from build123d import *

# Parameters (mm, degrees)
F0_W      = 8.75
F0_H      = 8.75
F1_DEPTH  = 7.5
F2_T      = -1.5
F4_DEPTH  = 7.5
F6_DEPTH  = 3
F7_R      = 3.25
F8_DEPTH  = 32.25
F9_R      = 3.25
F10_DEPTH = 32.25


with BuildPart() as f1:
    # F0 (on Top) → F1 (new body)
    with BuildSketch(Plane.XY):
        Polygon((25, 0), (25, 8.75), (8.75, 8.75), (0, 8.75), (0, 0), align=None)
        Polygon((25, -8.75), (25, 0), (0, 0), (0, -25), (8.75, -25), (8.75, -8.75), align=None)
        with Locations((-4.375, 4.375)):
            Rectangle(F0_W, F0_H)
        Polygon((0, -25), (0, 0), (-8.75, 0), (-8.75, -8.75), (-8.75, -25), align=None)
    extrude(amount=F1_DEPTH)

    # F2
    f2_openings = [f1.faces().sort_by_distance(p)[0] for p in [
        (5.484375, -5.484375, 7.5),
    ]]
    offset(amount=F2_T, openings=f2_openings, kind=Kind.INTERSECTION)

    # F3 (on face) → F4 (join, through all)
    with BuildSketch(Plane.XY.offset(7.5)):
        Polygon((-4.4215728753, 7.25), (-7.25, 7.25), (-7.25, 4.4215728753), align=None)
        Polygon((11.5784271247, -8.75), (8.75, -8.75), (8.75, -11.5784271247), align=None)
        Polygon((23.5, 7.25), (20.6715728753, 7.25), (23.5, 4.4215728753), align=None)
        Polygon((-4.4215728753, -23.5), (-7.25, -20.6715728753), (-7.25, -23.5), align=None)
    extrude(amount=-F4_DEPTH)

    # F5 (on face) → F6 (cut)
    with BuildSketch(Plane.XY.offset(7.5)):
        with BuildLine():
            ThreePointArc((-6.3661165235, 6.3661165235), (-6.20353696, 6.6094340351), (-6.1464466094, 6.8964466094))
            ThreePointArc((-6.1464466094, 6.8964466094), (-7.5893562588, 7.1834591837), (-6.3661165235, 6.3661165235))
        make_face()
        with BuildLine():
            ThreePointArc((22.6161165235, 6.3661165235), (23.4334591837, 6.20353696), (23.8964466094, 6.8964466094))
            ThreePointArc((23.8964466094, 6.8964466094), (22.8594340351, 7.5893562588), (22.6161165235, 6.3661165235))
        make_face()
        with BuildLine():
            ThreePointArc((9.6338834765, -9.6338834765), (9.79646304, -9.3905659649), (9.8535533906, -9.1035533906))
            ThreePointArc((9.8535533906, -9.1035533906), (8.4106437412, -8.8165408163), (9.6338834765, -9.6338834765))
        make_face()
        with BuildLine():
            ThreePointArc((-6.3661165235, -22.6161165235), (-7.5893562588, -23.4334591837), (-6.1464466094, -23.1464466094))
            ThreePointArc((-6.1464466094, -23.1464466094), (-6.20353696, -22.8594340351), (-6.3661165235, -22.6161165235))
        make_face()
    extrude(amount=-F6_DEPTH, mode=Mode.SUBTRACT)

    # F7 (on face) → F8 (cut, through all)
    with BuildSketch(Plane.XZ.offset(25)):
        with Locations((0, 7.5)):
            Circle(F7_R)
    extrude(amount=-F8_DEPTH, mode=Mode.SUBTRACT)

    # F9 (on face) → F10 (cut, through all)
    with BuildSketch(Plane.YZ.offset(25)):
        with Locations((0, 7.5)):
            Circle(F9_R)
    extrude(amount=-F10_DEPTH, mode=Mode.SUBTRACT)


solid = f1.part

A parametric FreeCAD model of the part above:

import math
import FreeCAD as App
import Part
import Sketcher

V = App.Vector


def faces_at(feature, points):
    """Names of the faces that lie closest to the given points."""
    faces = feature.Shape.Faces
    near = lambda p: min(range(len(faces)), key=lambda i: faces[i].distToShape(Part.Vertex(*p))[0])
    return sorted({f"Face{near(p) + 1}" for p in points})


def add_polygon(sketch, points):
    """Adds a closed chain of lines whose ends are joined by coincident constraints."""
    first, n = sketch.GeometryCount, len(points)
    for a, b in zip(points, points[1:] + points[:1]):
        sketch.addGeometry(Part.LineSegment(App.Vector(*a, 0), App.Vector(*b, 0)), False)
    for i in range(n):
        sketch.addConstraint(Sketcher.Constraint("Coincident", first + i, 2, first + (i + 1) % n, 1))

doc = App.newDocument("Part")
body = doc.addObject("PartDesign::Body", "Body")

sketch1 = body.newObject("Sketcher::SketchObject", "Sketch")
sketch1.AttachmentSupport = (doc.getObject("XY_Plane"), [""])
sketch1.MapMode = "FlatFace"
add_polygon(sketch1, [(25, 9), (-9, 9), (-9, -25), (9, -25), (9, -9), (25, -9)])
sketch1.addConstraint([
    Sketcher.Constraint("Horizontal", 0),
    Sketcher.Constraint("Vertical", 1),
    Sketcher.Constraint("Horizontal", 2),
    Sketcher.Constraint("Vertical", 3),
    Sketcher.Constraint("Horizontal", 4),
    Sketcher.Constraint("Vertical", 5),
    Sketcher.Constraint("Symmetric", 0, 2, 3, 2, -1, 1),
    Sketcher.Constraint("Equal", 0, 1),
    Sketcher.Constraint("Equal", 4, 3),
    Sketcher.Constraint("DistanceX", 2, 1, 2, 2, 17.5),
    Sketcher.Constraint("DistanceY", 1, 2, -1, 1, 25.0),
])
pad1 = body.newObject("PartDesign::Pad", "Pad")
pad1.Profile = sketch1
pad1.Length = 7.5
doc.recompute()

thickness = body.newObject("PartDesign::Thickness", "Thickness")
thickness.Base = (pad1, faces_at(pad1, [(8.125, -8.125, 7.5)]))
thickness.Value = 1.5
thickness.Reversed = True
thickness.Join = "Intersection"

sketch2 = body.newObject("Sketcher::SketchObject", "Sketch001")
sketch2.AttachmentSupport = (doc.getObject("XY_Plane"), [""])
sketch2.MapMode = "FlatFace"
sketch2.AttachmentOffset = App.Placement(V(0, 0, 7.5), App.Rotation())
add_polygon(sketch2, [(-4.4, 7.2), (-7.2, 7.2), (-7.2, 4.4)])
add_polygon(sketch2, [(11.6, -8.8), (8.8, -8.8), (8.8, -11.6)])
add_polygon(sketch2, [(23.5, 7.2), (20.7, 7.2), (23.5, 4.4)])
add_polygon(sketch2, [(-4.4, -23.5), (-7.2, -20.7), (-7.2, -23.5)])
sketch2.addConstraint([
    Sketcher.Constraint("Horizontal", 0),
    Sketcher.Constraint("Vertical", 1),
    Sketcher.Constraint("Horizontal", 3),
    Sketcher.Constraint("Vertical", 4),
    Sketcher.Constraint("Horizontal", 6),
    Sketcher.Constraint("Vertical", 8),
    Sketcher.Constraint("Vertical", 10),
    Sketcher.Constraint("Horizontal", 11),
    Sketcher.Constraint("Parallel", 2, 5),
    Sketcher.Constraint("Perpendicular", 5, 7),
    Sketcher.Constraint("Parallel", 7, 9),
    Sketcher.Constraint("Horizontal", 2, 2, 6, 2),
    Sketcher.Constraint("Horizontal", 1, 2, 7, 2),
    Sketcher.Constraint("Vertical", 1, 2, 9, 2),
    Sketcher.Constraint("Vertical", 2, 2, 11, 2),
    Sketcher.Constraint("Equal", 0, 3),
    Sketcher.Constraint("Equal", 3, 6),
    Sketcher.Constraint("Distance", 2, 4.0),
    Sketcher.Constraint("DistanceX", 1, 2, 3, 2, 16.0),
    Sketcher.Constraint("DistanceY", 3, 2, 2, 2, 16.0),
    Sketcher.Constraint("DistanceX", -1, 1, 7, 2, 23.5),
    Sketcher.Constraint("DistanceY", 10, 2, -1, 1, 23.5),
    Sketcher.Constraint("DistanceX", 0, 2, -1, 1, 7.25),
    Sketcher.Constraint("DistanceY", -1, 1, 0, 2, 7.25),
])
pad2 = body.newObject("PartDesign::Pad", "Pad001")
pad2.Profile = sketch2
pad2.Type = "UpToLast"
pad2.Reversed = True

sketch3 = body.newObject("Sketcher::SketchObject", "Sketch002")
sketch3.AttachmentSupport = (doc.getObject("XY_Plane"), [""])
sketch3.MapMode = "FlatFace"
sketch3.AttachmentOffset = App.Placement(V(0, 0, 7.5), App.Rotation())
sketch3.addGeometry([
    Part.ArcOfCircle(Part.Circle(V(-6.9, 6.9, 0), V(0, 0, 1), 0.8), math.radians(-45), math.radians(0)),
    Part.ArcOfCircle(Part.Circle(V(-6.9, 6.9, 0), V(0, 0, 1), 0.8), math.radians(0), math.radians(315)),
    Part.ArcOfCircle(Part.Circle(V(23.1, 6.9, 0), V(0, 0, 1), 0.8), math.radians(-135), math.radians(0)),
    Part.ArcOfCircle(Part.Circle(V(23.1, 6.9, 0), V(0, 0, 1), 0.8), math.radians(0), math.radians(225)),
    Part.ArcOfCircle(Part.Circle(V(9.1, -9.1, 0), V(0, 0, 1), 0.8), math.radians(-45), math.radians(0)),
    Part.ArcOfCircle(Part.Circle(V(9.1, -9.1, 0), V(0, 0, 1), 0.8), math.radians(0), math.radians(315)),
    Part.ArcOfCircle(Part.Circle(V(-6.9, -23.1, 0), V(0, 0, 1), 0.8), math.radians(45), math.radians(360)),
    Part.ArcOfCircle(Part.Circle(V(-6.9, -23.1, 0), V(0, 0, 1), 0.8), math.radians(0), math.radians(45)),
], False)
sketch3.addConstraint([
    Sketcher.Constraint("Tangent", 0, 1, 1, 2),
    Sketcher.Constraint("Coincident", 1, 1, 0, 2),
    Sketcher.Constraint("Tangent", 2, 1, 3, 2),
    Sketcher.Constraint("Coincident", 3, 1, 2, 2),
    Sketcher.Constraint("Tangent", 4, 1, 5, 2),
    Sketcher.Constraint("Coincident", 5, 1, 4, 2),
    Sketcher.Constraint("Tangent", 6, 1, 7, 2),
    Sketcher.Constraint("Coincident", 7, 1, 6, 2),
    Sketcher.Constraint("Equal", 1, 2),
    Sketcher.Constraint("Equal", 3, 4),
    Sketcher.Constraint("Equal", 5, 6),
    Sketcher.Constraint("Horizontal", 1, 3, 2, 3),
    Sketcher.Constraint("Horizontal", 3, 3, 1, 1),
    Sketcher.Constraint("Horizontal", 0, 1, 2, 1),
    Sketcher.Constraint("Horizontal", 1, 1, 3, 1),
    Sketcher.Constraint("Horizontal", 4, 3, 5, 1),
    Sketcher.Constraint("Horizontal", 6, 3, 7, 1),
    Sketcher.Constraint("Vertical", 1, 3, 6, 3),
    Sketcher.Constraint("Vertical", 0, 1, 6, 1),
    Sketcher.Constraint("Radius", 0, 0.75),
    Sketcher.Constraint("DistanceY", 4, 3, 2, 3, 16.0),
    Sketcher.Constraint("DistanceX", 0, 3, 4, 3, 16.0),
    Sketcher.Constraint("DistanceY", 4, 1, 2, 1, 16.0),
    Sketcher.Constraint("DistanceX", 0, 3, 0, 1, 0.53033),
    Sketcher.Constraint("DistanceX", 0, 3, -1, 1, 6.896447),
    Sketcher.Constraint("DistanceY", -1, 1, 0, 3, 6.896447),
    Sketcher.Constraint("DistanceX", -1, 1, 2, 3, 23.146447),
    Sketcher.Constraint("DistanceY", 6, 3, -1, 1, 23.146447),
])
pocket1 = body.newObject("PartDesign::Pocket", "Pocket")
pocket1.Profile = sketch3
pocket1.Length = 3

sketch4 = body.newObject("Sketcher::SketchObject", "Sketch003")
sketch4.AttachmentSupport = (doc.getObject("XZ_Plane"), [""])
sketch4.MapMode = "FlatFace"
sketch4.AttachmentOffset = App.Placement(V(0, 0, 25), App.Rotation())
sketch4.addGeometry(Part.Circle(V(0, 7.5, 0), V(0, 0, 1), 3.2), False)
sketch4.addConstraint([
    Sketcher.Constraint("PointOnObject", 0, 3, -2),
    Sketcher.Constraint("Diameter", 0, 6.5),
    Sketcher.Constraint("DistanceY", -1, 1, 0, 3, 7.5),
])
pocket2 = body.newObject("PartDesign::Pocket", "Pocket001")
pocket2.Profile = sketch4
pocket2.Length = 32.25

sketch5 = body.newObject("Sketcher::SketchObject", "Sketch004")
sketch5.AttachmentSupport = (doc.getObject("YZ_Plane"), [""])
sketch5.MapMode = "FlatFace"
sketch5.AttachmentOffset = App.Placement(V(0, 0, 25), App.Rotation())
sketch5.addGeometry(Part.Circle(V(0, 7.5, 0), V(0, 0, 1), 3.2), False)
sketch5.addConstraint([
    Sketcher.Constraint("PointOnObject", 0, 3, -2),
    Sketcher.Constraint("Diameter", 0, 6.5),
    Sketcher.Constraint("DistanceY", -1, 1, 0, 3, 7.5),
])
pocket3 = body.newObject("PartDesign::Pocket", "Pocket002")
pocket3.Profile = sketch5
pocket3.Length = 32.25

doc.recompute()
